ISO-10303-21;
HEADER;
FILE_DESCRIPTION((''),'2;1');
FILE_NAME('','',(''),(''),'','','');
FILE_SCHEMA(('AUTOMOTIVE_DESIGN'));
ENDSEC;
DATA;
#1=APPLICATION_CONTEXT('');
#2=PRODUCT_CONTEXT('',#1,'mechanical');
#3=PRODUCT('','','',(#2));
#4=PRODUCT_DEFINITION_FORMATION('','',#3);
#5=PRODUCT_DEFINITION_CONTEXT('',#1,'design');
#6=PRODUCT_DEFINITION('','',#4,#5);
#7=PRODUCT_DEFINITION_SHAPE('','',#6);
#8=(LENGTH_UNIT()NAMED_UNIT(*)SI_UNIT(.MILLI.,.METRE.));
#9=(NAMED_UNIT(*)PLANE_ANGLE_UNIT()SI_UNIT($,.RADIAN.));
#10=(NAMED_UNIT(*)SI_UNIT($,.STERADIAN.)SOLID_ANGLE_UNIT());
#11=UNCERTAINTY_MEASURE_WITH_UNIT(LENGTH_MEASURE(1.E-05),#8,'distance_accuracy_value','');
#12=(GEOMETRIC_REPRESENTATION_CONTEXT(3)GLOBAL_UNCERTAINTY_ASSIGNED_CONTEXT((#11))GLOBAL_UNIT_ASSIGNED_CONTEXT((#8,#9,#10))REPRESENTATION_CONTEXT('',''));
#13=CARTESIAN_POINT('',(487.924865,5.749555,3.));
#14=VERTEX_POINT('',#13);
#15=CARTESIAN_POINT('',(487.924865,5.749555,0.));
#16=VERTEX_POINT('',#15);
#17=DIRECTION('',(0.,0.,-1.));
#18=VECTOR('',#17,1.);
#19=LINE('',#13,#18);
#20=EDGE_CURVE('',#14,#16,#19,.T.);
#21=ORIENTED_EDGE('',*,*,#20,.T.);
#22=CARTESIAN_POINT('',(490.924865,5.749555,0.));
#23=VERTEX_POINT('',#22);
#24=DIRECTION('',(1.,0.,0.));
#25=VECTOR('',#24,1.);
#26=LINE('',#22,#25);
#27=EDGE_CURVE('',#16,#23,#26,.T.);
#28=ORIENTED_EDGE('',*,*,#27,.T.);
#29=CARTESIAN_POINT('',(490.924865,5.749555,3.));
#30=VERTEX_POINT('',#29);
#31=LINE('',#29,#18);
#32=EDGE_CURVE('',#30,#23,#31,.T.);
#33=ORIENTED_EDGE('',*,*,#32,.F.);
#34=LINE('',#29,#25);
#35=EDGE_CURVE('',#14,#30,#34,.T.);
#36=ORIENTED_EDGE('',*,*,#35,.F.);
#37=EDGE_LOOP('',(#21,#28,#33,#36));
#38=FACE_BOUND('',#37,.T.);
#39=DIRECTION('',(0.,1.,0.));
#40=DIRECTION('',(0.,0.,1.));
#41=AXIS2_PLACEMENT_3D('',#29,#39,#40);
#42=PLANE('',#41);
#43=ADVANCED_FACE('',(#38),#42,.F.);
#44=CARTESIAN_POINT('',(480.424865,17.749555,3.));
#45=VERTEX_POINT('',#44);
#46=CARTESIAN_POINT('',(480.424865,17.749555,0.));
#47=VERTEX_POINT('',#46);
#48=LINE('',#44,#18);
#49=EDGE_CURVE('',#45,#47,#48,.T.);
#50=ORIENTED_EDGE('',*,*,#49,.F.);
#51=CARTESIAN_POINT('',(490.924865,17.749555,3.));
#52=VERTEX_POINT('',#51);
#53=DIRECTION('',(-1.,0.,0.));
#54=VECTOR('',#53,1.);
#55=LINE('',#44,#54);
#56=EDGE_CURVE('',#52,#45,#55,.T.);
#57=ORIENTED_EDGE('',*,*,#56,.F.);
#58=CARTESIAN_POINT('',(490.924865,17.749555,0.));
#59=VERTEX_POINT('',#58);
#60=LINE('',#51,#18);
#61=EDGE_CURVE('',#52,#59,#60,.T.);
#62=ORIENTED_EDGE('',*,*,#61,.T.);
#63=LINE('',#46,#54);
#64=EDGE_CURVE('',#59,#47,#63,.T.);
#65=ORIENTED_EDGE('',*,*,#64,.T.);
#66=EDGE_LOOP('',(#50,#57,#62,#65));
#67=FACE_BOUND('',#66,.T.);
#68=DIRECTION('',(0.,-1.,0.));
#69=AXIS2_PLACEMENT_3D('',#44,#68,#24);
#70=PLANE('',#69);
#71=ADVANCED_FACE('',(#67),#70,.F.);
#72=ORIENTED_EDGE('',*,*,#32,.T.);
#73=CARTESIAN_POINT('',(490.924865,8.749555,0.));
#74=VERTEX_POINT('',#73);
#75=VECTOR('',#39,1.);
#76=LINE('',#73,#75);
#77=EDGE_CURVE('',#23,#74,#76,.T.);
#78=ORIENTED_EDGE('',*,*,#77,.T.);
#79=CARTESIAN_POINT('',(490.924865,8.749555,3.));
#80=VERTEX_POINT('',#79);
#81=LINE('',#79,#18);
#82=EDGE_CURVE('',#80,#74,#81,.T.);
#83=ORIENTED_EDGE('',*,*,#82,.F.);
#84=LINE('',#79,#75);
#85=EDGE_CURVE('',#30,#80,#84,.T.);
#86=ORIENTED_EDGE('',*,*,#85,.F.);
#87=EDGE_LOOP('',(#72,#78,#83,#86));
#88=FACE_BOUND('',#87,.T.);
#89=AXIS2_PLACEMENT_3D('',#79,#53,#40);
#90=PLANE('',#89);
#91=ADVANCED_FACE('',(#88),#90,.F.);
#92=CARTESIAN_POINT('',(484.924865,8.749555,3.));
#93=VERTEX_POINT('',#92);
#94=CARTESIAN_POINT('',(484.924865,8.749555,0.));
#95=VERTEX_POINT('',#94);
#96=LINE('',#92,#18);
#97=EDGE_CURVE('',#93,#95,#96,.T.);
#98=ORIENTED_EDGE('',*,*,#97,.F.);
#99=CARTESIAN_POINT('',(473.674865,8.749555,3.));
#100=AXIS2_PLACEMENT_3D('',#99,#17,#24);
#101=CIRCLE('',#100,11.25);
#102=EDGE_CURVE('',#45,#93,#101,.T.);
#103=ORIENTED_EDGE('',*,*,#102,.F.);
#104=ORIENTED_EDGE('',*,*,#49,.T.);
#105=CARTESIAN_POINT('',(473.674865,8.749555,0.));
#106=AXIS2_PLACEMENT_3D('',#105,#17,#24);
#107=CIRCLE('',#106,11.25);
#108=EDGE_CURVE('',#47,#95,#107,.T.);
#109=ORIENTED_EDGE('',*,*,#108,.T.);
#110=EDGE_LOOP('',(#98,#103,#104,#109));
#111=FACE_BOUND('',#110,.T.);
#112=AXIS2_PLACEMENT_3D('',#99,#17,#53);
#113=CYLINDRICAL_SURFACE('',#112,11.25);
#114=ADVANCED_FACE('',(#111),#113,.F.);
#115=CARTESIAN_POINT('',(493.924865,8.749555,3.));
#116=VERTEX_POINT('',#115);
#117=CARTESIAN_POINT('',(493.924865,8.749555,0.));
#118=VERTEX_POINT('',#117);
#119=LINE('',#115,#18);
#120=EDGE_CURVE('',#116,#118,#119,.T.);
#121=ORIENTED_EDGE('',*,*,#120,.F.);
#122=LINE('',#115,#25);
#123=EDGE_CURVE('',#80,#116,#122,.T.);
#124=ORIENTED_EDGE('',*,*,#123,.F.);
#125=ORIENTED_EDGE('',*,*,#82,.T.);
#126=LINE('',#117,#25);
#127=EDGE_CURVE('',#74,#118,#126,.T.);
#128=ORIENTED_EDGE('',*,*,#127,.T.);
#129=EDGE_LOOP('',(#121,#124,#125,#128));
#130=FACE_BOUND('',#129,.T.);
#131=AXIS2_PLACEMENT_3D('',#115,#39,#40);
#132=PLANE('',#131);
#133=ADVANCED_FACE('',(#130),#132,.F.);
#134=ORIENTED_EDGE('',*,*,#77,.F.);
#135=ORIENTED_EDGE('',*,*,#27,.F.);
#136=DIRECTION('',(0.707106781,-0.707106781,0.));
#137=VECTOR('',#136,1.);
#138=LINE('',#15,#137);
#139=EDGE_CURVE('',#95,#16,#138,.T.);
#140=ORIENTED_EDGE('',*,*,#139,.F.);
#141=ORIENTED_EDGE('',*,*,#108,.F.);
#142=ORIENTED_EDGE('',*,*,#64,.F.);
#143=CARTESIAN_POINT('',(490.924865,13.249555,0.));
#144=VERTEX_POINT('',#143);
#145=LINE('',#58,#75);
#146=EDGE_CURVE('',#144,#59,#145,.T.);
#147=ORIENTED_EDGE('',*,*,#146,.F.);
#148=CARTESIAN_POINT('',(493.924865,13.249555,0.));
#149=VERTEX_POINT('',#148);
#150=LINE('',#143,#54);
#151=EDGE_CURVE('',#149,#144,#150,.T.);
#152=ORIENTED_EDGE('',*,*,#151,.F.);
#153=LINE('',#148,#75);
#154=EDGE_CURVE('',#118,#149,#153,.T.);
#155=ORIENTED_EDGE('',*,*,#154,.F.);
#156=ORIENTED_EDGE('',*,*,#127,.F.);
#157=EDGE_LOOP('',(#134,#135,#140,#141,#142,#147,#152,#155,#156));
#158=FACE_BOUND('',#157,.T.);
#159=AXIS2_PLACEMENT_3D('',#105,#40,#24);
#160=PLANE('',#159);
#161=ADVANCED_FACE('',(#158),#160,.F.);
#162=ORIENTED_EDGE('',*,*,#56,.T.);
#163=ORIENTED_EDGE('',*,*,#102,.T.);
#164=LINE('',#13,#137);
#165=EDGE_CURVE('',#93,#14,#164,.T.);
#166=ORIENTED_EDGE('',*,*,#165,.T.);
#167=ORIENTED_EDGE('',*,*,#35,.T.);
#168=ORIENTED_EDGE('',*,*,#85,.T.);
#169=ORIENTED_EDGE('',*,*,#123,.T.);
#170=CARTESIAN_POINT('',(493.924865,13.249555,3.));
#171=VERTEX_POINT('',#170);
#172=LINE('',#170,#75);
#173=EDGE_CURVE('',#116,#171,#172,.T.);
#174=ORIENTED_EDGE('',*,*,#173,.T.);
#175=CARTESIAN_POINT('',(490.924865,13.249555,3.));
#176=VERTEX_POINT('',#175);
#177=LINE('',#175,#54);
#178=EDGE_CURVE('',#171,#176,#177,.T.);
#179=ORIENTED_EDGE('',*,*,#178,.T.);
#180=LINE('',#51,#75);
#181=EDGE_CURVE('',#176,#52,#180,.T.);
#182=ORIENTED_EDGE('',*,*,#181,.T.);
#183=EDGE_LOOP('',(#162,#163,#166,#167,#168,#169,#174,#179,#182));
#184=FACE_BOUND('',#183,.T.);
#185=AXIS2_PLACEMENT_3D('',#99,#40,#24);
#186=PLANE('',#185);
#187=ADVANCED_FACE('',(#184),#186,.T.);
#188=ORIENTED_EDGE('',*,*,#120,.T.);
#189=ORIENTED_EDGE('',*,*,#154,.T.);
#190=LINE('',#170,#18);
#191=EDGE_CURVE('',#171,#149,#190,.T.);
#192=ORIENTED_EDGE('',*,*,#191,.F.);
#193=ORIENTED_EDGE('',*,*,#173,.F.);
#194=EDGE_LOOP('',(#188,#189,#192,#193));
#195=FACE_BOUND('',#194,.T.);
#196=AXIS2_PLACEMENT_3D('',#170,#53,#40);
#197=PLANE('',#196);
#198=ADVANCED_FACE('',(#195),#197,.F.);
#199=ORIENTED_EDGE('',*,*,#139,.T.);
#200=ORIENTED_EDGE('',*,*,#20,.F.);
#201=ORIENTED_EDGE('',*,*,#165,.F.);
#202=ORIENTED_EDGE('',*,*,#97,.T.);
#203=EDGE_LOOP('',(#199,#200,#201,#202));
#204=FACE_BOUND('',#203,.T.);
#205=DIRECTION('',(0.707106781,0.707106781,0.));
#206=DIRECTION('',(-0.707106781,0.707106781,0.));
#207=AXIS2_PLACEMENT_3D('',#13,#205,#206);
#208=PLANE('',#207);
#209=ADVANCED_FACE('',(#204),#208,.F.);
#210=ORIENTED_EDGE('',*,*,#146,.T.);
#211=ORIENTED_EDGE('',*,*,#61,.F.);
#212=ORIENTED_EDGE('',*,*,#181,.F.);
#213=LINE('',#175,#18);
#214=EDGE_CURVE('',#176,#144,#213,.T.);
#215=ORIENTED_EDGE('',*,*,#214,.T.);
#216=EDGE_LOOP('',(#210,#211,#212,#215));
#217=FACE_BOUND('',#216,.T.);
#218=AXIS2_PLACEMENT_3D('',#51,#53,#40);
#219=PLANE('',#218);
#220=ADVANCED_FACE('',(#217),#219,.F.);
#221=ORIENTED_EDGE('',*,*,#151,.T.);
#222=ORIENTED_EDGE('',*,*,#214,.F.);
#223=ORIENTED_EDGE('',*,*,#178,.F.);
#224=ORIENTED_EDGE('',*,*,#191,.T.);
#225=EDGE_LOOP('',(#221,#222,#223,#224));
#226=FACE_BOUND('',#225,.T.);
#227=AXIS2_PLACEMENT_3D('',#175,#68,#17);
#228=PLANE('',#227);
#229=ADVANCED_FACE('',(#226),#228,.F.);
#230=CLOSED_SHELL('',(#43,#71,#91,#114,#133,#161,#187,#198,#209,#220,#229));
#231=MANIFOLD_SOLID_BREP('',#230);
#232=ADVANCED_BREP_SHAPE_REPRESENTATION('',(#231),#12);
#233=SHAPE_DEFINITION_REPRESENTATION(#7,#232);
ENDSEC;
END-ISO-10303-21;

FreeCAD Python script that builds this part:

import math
import FreeCAD as App
import Part
import Sketcher
Q = App.Units.Quantity

doc = App.newDocument("Part")
body = doc.addObject("PartDesign::Body", "Body")

# Sketch on XY plane
sketch1 = doc.addObject("Sketcher::SketchObject", "Sketch")
body.addObject(sketch1)
sketch1.AttachmentSupport = (doc.XY_Plane, [""])
sketch1.MapMode = "FlatFace"
sketch1.addGeometry([
    Part.LineSegment(App.Vector(490.9, 5.7, 0), App.Vector(490.9, 8.7, 0)),  # 0
    Part.LineSegment(App.Vector(490.9, 8.7, 0), App.Vector(493.9, 8.7, 0)),  # 1
    Part.LineSegment(App.Vector(493.9, 8.7, 0), App.Vector(493.9, 13.2, 0)),  # 2
    Part.LineSegment(App.Vector(493.9, 13.2, 0), App.Vector(490.9, 13.2, 0)),  # 3
    Part.LineSegment(App.Vector(490.9, 13.2, 0), App.Vector(490.9, 17.7, 0)),  # 4
    Part.LineSegment(App.Vector(490.9, 17.7, 0), App.Vector(480.4, 17.7, 0)),  # 5
    Part.ArcOfCircle(Part.Circle(App.Vector(473.7, 8.7, 0), App.Vector(0, 0, 1), 11.3), math.radians(0), math.radians(53)),  # 6
    Part.LineSegment(App.Vector(484.9, 8.7, 0), App.Vector(487.9, 5.7, 0)),  # 7
    Part.LineSegment(App.Vector(487.9, 5.7, 0), App.Vector(490.9, 5.7, 0)),  # 8
], False)
sketch1.addConstraint([
    Sketcher.Constraint("Coincident", 0, 2, 1, 1),
    Sketcher.Constraint("Coincident", 1, 2, 2, 1),
    Sketcher.Constraint("Coincident", 2, 2, 3, 1),
    Sketcher.Constraint("Coincident", 3, 2, 4, 1),
    Sketcher.Constraint("Coincident", 4, 2, 5, 1),
    Sketcher.Constraint("Coincident", 5, 2, 6, 2),
    Sketcher.Constraint("Coincident", 6, 1, 7, 1),
    Sketcher.Constraint("Coincident", 7, 2, 8, 1),
    Sketcher.Constraint("Coincident", 8, 2, 0, 1),
    Sketcher.Constraint("Vertical", 0),
    Sketcher.Constraint("Horizontal", 1),
    Sketcher.Constraint("Vertical", 2),
    Sketcher.Constraint("Horizontal", 3),
    Sketcher.Constraint("Vertical", 4),
    Sketcher.Constraint("Horizontal", 5),
    Sketcher.Constraint("Horizontal", 8),
    Sketcher.Constraint("Horizontal", 6, 3, 0, 2),
    Sketcher.Constraint("Horizontal", 1, 2, 6, 1),
    Sketcher.Constraint("Vertical", 0, 2, 3, 2),
    Sketcher.Constraint("Equal", 3, 8),
    Sketcher.Constraint("Equal", 8, 0),
    Sketcher.Constraint("Equal", 2, 4),
    Sketcher.Constraint("DistanceX", 1, 1, 1, 2, 3.0),
    Sketcher.Constraint("Angle", 7, Q("-45 deg")),
    Sketcher.Constraint("Radius", 6, 11.25),
    Sketcher.Constraint("DistanceX", 5, 2, 5, 1, 10.5),
    Sketcher.Constraint("DistanceX", -1, 1, 6, 3, 473.674865),
    Sketcher.Constraint("DistanceY", -1, 1, 6, 3, 8.749555),
])
pad1 = doc.addObject("PartDesign::Pad", "Pad")
body.addObject(pad1)
pad1.Profile = sketch1
pad1.Length = 3

doc.recompute()
